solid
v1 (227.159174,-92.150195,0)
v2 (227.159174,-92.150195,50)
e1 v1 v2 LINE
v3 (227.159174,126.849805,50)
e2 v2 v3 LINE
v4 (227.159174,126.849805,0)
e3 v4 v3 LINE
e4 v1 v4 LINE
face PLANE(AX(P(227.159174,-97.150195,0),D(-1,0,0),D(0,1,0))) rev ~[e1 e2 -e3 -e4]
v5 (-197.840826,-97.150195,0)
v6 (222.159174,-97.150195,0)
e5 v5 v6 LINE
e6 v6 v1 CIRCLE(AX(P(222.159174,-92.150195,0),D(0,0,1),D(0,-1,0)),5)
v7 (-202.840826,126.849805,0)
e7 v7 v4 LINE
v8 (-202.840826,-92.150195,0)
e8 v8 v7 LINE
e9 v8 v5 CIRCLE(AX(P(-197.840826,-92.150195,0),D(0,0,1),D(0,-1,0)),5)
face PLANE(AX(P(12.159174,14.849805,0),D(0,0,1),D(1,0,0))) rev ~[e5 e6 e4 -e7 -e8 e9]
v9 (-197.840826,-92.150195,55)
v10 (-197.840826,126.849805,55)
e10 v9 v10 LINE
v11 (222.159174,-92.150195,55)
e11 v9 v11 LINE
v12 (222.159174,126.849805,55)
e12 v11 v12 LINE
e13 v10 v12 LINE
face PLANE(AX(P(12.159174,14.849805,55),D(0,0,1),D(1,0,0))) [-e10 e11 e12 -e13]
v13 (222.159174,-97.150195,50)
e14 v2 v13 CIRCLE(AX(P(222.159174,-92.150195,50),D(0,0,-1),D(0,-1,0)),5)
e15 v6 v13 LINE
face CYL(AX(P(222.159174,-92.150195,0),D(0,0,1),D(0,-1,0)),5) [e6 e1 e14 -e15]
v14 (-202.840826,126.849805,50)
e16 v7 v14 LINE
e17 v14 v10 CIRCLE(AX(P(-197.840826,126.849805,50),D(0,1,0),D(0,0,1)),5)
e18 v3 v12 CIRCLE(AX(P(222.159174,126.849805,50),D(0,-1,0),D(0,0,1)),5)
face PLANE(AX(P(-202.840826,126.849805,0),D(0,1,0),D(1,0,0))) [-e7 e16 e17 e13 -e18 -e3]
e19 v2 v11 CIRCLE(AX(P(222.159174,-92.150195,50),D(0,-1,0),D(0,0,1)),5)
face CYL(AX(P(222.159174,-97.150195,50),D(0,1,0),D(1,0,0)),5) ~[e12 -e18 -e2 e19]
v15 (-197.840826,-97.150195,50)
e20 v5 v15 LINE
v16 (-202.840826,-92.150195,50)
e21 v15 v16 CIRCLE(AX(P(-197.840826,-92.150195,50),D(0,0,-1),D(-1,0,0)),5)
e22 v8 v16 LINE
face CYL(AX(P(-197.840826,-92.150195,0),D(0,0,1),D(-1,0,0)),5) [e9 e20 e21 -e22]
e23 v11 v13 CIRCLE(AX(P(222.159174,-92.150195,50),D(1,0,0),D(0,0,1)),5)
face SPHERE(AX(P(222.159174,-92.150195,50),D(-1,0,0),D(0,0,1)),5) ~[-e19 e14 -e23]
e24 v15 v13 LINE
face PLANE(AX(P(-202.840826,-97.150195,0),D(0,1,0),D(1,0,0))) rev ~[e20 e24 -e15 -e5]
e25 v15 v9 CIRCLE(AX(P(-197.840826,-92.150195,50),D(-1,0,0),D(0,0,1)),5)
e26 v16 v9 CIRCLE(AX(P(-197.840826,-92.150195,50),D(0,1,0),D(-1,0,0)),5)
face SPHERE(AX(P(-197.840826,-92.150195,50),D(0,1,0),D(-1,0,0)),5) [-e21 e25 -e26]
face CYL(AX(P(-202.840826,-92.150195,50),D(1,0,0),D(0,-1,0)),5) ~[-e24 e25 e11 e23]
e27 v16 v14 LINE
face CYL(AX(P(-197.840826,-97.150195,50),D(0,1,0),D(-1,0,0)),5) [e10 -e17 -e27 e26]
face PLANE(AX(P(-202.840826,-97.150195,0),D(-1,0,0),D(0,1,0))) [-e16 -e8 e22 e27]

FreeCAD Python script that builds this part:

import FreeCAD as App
import Part
import Sketcher

V = App.Vector
Q = App.Units.Quantity


def edges_at(feature, points):
    """Names of the edges that pass closest to the given points."""
    edges = feature.Shape.Edges
    near = lambda p: min(range(len(edges)), key=lambda i: edges[i].distToShape(Part.Vertex(*p))[0])
    return sorted({f"Edge{near(p) + 1}" for p in points})


def add_polygon(sketch, points):
    """Adds a closed chain of lines whose ends are joined by coincident constraints."""
    first, n = sketch.GeometryCount, len(points)
    for a, b in zip(points, points[1:] + points[:1]):
        sketch.addGeometry(Part.LineSegment(App.Vector(*a, 0), App.Vector(*b, 0)), False)
    for i in range(n):
        sketch.addConstraint(Sketcher.Constraint("Coincident", first + i, 2, first + (i + 1) % n, 1))

doc = App.newDocument("Part")
params = doc.addObject("Spreadsheet::Sheet", "Params")
for row, (alias, value) in enumerate([
    ("sketch1_width", "430 mm"),
    ("sketch1_height", "224 mm"),
    ("pad1_length", "55 mm"),
    ("fillet_radius", "5 mm"),
], start=1):
    params.set(f"A{row}", alias)
    params.set(f"B{row}", "=" + value)
    params.setAlias(f"B{row}", alias)

body = doc.addObject("PartDesign::Body", "Body")

sketch1 = doc.addObject("Sketcher::SketchObject", "Sketch")
body.addObject(sketch1)
sketch1.AttachmentSupport = (doc.XY_Plane, [""])
sketch1.MapMode = "FlatFace"
add_polygon(sketch1, [(-203, 127), (-203, -97), (227, -97), (227, 127)])
sketch1.addConstraint(Sketcher.Constraint("Vertical", 0))
sketch1.addConstraint(Sketcher.Constraint("Horizontal", 1))
sketch1.addConstraint(Sketcher.Constraint("Vertical", 2))
sketch1.addConstraint(Sketcher.Constraint("Horizontal", 3))
sketch1.addConstraint(Sketcher.Constraint("DistanceX", 1, 1, 1, 2, Q("430 mm")))
sketch1.addConstraint(Sketcher.Constraint("DistanceY", 0, 2, 0, 1, Q("224 mm")))
sketch1.addConstraint(Sketcher.Constraint("DistanceX", 0, 2, -1, 1, Q("202.840826 mm")))
sketch1.addConstraint(Sketcher.Constraint("DistanceY", 0, 2, -1, 1, Q("97.150195 mm")))
sketch1.setExpression("Constraints[8]", "Params.sketch1_width")
sketch1.setExpression("Constraints[9]", "Params.sketch1_height")
pad1 = doc.addObject("PartDesign::Pad", "Pad")
body.addObject(pad1)
pad1.Profile = sketch1
pad1.setExpression("Length", "Params.pad1_length")
doc.recompute()

fillet = doc.addObject("PartDesign::Fillet", "Fillet")
body.addObject(fillet)
fillet.Base = (pad1, edges_at(pad1, [
    (-202.841, 14.85, 55),
    (-202.841, -97.15, 27.5),
    (12.159, -97.15, 55),
    (227.159, 14.85, 55),
    (227.159, -97.15, 27.5),
]))
fillet.setExpression("Radius", "Params.fillet_radius")

doc.recompute()
